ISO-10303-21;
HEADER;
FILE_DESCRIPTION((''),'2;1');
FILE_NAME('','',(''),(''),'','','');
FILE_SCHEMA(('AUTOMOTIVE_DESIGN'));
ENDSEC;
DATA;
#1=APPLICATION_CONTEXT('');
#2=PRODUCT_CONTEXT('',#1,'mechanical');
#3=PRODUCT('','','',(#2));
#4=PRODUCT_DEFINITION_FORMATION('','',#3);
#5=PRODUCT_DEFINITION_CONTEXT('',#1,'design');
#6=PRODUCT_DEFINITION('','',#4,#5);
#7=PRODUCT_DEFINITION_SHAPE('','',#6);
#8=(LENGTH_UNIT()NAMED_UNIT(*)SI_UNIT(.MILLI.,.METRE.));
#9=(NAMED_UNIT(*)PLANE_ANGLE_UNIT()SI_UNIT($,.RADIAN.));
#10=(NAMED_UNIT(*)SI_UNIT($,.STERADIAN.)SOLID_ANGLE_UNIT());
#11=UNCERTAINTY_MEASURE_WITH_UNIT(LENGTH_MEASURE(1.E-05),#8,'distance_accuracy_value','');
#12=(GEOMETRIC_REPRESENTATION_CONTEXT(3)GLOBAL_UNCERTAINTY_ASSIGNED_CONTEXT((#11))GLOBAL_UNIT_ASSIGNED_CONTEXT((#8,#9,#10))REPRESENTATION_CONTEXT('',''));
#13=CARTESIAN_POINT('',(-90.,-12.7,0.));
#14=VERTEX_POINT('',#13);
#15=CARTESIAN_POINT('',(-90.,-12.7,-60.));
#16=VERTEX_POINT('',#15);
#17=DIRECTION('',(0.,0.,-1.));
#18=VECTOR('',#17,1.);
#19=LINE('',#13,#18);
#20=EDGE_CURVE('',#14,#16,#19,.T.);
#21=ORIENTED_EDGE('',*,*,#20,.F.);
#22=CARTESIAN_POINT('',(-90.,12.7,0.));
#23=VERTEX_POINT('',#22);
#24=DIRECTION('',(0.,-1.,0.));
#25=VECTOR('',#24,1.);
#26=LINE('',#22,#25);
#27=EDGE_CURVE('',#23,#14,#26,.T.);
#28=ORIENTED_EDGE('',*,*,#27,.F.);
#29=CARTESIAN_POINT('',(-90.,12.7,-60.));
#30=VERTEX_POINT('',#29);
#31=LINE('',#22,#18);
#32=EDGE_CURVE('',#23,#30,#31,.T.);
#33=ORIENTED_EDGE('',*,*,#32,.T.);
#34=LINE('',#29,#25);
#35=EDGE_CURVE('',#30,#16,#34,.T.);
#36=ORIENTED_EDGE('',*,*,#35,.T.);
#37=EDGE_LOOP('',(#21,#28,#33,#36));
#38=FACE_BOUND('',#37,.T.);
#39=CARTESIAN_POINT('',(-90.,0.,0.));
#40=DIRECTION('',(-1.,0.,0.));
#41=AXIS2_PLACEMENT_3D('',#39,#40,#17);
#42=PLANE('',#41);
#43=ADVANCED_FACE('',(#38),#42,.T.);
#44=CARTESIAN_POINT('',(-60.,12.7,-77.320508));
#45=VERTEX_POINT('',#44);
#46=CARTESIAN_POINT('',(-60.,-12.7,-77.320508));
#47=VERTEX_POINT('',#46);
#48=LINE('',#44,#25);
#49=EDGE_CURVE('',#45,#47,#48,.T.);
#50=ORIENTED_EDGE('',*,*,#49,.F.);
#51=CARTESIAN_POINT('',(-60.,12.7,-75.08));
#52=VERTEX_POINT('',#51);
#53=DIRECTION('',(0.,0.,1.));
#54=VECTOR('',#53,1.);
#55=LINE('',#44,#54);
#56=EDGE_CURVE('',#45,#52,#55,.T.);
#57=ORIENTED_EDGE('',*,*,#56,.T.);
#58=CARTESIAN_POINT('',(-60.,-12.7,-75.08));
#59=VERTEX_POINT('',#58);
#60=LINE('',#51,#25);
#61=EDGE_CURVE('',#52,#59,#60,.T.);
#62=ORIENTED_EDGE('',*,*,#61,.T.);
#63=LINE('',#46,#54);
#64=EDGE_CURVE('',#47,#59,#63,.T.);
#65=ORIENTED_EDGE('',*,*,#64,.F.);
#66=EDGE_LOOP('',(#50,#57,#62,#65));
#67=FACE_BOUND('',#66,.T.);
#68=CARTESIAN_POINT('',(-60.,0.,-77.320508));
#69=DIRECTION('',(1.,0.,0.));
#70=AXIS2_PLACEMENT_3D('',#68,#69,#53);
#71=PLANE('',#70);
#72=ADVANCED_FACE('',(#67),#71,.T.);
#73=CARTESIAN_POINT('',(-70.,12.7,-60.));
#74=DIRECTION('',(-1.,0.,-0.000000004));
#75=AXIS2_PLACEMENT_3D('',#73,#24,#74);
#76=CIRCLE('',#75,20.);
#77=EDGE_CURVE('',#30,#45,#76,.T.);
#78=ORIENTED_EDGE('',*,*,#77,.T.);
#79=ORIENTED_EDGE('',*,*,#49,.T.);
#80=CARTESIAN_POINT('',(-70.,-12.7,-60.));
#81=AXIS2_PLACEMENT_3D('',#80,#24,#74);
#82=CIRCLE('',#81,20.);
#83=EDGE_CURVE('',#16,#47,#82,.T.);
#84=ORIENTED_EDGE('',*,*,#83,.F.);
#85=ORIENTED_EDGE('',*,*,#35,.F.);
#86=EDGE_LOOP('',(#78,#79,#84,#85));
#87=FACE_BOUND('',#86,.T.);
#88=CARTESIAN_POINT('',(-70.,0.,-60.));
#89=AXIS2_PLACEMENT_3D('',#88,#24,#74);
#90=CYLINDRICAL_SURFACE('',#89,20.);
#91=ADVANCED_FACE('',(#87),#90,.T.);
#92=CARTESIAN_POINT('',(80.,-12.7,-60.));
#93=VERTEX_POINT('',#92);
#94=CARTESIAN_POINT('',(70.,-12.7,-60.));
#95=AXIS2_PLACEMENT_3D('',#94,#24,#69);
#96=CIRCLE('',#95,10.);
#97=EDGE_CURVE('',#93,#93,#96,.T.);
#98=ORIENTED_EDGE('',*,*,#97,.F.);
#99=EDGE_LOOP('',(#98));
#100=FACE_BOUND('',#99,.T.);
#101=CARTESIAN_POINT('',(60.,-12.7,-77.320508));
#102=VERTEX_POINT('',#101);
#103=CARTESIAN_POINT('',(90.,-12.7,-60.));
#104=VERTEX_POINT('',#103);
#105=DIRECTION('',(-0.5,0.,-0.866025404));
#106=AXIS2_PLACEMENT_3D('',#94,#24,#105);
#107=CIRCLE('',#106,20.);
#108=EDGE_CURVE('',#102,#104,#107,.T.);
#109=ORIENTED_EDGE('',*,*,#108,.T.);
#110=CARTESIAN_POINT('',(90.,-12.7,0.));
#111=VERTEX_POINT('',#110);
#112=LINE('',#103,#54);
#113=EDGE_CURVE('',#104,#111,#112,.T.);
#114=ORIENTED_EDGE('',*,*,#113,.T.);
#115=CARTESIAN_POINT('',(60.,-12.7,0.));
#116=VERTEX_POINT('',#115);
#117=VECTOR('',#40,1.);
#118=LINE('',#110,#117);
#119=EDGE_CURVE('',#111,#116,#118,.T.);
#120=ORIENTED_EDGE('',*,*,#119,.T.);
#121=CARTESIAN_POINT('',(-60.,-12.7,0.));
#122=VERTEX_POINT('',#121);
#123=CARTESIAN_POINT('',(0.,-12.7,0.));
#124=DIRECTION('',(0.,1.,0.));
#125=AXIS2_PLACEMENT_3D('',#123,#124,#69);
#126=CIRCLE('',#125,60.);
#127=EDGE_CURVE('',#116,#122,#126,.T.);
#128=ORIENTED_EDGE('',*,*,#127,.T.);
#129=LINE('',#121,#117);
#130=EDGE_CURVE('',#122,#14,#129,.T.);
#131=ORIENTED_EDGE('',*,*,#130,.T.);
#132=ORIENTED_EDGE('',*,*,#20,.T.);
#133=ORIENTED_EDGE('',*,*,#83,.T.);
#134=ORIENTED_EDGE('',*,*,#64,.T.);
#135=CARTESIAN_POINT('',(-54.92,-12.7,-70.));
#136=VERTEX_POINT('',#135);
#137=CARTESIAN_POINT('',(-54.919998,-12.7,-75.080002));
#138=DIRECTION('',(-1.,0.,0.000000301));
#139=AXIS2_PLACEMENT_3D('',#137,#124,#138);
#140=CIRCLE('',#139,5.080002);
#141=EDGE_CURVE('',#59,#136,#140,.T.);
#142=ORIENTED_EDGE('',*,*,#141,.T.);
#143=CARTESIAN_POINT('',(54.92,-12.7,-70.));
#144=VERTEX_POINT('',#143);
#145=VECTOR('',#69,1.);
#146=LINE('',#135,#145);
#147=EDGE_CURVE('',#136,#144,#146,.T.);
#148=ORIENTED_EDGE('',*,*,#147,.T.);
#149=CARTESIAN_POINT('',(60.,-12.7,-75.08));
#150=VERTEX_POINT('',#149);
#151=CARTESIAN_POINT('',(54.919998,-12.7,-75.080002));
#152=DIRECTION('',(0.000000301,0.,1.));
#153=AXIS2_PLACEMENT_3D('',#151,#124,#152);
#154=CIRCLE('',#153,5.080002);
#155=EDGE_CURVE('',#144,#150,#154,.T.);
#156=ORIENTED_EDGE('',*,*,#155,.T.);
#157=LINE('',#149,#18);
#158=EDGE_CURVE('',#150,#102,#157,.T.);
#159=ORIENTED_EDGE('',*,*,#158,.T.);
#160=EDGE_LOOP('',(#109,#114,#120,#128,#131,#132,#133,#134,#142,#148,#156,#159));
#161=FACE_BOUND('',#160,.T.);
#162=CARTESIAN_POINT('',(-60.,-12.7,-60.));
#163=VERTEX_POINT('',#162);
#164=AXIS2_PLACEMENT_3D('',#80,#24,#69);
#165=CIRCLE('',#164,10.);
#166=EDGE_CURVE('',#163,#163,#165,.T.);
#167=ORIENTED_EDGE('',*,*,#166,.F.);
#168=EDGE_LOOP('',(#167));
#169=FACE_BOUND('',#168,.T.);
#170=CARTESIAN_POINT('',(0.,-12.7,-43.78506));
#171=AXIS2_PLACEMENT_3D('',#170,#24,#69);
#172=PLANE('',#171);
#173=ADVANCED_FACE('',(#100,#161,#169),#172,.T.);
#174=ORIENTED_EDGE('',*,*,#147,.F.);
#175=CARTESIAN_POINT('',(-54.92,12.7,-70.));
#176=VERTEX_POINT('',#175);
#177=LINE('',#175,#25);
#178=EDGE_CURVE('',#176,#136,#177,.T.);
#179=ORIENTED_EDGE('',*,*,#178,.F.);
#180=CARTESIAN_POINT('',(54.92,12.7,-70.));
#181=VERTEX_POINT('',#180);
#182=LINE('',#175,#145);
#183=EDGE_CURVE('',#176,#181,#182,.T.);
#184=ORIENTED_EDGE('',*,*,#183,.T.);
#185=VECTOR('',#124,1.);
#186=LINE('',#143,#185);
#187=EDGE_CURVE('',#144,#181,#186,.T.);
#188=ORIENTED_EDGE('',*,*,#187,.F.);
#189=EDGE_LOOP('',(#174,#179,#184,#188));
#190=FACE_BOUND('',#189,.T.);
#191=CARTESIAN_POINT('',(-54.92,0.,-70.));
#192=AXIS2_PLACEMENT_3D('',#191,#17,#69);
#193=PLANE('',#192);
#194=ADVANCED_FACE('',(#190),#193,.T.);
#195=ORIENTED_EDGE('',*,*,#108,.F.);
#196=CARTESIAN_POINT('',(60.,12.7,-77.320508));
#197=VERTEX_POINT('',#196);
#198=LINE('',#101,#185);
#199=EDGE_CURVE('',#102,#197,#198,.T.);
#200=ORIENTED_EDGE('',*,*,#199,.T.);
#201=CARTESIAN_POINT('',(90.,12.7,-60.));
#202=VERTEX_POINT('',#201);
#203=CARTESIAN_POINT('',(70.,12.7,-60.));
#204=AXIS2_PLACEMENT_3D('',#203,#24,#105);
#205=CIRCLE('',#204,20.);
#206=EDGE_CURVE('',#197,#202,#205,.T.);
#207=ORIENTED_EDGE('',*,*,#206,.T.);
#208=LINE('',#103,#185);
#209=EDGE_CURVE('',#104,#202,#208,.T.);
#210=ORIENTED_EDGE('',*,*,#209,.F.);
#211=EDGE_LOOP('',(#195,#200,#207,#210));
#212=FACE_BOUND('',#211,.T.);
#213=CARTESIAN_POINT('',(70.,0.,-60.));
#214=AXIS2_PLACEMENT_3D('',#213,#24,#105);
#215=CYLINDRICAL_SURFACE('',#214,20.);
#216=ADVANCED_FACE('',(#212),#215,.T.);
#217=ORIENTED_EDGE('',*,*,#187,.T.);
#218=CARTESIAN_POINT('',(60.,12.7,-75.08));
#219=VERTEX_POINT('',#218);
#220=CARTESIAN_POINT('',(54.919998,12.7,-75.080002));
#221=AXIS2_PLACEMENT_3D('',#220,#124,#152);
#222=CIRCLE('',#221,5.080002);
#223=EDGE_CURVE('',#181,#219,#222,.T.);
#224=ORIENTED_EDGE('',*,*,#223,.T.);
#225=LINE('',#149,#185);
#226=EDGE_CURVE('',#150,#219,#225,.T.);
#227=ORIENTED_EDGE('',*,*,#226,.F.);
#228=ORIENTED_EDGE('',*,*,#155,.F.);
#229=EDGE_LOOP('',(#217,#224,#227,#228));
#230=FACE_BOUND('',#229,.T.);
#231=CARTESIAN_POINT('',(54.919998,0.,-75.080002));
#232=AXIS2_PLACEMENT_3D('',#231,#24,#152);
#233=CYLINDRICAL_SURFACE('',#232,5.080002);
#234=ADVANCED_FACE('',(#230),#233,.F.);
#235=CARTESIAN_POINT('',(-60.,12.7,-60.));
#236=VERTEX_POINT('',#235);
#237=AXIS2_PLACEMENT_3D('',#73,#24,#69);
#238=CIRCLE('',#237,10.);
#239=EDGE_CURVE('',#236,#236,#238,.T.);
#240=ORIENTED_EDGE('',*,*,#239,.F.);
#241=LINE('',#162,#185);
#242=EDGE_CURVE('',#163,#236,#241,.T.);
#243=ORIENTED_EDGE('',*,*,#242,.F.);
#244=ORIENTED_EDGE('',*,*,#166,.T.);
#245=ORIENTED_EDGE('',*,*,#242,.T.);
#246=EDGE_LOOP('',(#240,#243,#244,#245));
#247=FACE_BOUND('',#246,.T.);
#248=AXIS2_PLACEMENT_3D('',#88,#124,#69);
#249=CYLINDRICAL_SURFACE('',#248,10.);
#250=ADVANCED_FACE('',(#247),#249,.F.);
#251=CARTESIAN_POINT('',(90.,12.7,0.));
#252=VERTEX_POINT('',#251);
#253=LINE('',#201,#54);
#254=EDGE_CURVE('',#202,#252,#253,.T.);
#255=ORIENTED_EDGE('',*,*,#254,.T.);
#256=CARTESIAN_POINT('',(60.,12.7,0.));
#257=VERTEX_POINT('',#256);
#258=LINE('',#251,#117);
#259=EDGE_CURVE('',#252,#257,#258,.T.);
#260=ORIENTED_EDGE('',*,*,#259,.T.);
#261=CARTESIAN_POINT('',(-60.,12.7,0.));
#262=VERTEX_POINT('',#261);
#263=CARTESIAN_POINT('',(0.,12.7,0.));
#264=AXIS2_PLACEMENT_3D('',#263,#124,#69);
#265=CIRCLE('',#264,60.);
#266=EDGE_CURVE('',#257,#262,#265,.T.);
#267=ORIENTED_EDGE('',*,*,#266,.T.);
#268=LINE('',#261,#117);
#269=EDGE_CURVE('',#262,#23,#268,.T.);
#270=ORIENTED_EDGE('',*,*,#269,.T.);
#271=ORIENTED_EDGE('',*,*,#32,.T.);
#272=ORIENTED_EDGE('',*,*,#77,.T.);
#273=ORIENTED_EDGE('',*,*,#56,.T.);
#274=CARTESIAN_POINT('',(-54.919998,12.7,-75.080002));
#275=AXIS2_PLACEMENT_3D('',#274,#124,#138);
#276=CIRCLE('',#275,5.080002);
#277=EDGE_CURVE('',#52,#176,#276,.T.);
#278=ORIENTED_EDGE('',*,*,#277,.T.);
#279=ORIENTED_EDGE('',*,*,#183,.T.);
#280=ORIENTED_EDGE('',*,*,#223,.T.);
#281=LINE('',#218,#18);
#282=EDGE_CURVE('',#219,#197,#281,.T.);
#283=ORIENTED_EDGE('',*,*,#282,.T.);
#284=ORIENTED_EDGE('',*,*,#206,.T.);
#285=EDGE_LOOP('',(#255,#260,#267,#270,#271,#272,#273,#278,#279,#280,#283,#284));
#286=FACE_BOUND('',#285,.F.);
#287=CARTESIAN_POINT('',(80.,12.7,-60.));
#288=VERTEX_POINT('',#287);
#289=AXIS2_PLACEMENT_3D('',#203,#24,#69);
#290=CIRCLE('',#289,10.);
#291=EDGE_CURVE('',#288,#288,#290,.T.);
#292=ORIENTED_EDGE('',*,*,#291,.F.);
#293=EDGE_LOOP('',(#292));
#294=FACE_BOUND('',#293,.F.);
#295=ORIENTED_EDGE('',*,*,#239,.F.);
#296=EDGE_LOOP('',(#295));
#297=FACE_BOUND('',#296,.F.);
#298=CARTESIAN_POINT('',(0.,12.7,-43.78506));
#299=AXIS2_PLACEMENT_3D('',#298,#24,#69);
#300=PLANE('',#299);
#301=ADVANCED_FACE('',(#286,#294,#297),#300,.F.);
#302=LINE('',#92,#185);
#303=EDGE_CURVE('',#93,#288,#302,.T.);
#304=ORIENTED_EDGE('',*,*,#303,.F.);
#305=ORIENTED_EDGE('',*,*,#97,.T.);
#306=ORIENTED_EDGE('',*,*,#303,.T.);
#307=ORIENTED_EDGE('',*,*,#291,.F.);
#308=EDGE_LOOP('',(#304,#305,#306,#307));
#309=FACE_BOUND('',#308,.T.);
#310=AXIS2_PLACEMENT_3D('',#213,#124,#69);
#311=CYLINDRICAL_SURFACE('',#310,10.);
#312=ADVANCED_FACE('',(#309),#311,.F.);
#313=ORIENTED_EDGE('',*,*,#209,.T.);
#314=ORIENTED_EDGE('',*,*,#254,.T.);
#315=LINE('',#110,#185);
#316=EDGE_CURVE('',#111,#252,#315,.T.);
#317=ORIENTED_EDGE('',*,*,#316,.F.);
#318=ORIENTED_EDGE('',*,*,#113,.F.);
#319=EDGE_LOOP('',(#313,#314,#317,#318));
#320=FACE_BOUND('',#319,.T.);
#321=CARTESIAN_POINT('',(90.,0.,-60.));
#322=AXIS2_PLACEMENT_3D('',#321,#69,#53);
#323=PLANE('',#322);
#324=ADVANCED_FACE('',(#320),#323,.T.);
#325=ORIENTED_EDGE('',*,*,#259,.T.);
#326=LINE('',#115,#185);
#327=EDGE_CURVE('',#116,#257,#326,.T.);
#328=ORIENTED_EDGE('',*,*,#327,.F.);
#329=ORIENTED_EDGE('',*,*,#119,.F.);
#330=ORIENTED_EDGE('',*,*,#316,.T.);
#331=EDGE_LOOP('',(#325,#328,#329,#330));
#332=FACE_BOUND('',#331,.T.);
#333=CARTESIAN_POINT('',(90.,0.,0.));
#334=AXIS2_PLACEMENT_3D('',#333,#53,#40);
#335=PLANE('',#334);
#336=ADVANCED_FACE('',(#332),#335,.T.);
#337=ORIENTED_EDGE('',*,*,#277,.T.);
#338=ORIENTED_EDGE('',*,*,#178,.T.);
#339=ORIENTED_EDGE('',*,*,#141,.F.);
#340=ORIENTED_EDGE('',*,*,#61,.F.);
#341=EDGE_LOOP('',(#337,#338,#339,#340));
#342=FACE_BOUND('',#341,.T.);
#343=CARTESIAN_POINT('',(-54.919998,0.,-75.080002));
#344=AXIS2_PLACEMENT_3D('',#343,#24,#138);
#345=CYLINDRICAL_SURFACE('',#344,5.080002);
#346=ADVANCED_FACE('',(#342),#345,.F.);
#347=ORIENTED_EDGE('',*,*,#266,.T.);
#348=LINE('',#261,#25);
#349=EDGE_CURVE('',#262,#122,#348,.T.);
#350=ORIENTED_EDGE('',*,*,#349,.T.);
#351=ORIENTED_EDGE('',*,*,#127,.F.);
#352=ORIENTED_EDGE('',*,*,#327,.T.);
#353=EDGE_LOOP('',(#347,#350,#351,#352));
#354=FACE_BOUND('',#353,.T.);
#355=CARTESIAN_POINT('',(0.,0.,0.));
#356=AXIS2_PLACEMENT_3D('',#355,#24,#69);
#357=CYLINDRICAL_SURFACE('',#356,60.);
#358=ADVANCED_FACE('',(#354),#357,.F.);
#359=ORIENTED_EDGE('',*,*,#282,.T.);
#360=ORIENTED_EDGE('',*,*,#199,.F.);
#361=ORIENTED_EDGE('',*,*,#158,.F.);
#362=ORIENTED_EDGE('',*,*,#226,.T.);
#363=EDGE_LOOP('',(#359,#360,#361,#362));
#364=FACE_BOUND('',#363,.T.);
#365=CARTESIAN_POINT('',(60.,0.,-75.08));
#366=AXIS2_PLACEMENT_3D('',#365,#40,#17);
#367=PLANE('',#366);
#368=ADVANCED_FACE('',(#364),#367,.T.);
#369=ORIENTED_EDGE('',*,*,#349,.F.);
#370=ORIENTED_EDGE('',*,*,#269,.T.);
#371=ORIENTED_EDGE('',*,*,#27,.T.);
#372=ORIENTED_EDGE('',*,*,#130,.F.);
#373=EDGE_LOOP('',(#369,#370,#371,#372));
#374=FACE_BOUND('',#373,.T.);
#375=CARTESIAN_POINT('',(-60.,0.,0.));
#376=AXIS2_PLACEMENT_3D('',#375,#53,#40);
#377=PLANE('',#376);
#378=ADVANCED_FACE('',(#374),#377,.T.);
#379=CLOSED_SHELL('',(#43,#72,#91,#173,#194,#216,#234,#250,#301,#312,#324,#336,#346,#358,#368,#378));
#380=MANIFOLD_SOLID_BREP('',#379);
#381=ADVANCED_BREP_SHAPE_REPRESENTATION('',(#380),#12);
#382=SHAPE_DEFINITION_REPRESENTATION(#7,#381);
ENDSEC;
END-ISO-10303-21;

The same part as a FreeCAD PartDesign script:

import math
import FreeCAD as App
import Part
import Sketcher
Q = App.Units.Quantity

doc = App.newDocument("Part")
body = doc.addObject("PartDesign::Body", "Body")

# Sketch on XZ plane
sketch1 = body.newObject("Sketcher::SketchObject", "Sketch")
sketch1.AttachmentSupport = (doc.getObject("XZ_Plane"), [""])
sketch1.MapMode = "FlatFace"
sketch1.addGeometry([
    Part.ArcOfCircle(Part.Circle(App.Vector(0, 0, 0), App.Vector(0, 0, 1), 60), math.radians(180), math.radians(360)),  # 0
    Part.LineSegment(App.Vector(-60, 0, 0), App.Vector(-90, 0, 0)),  # 1
    Part.LineSegment(App.Vector(-90, 0, 0), App.Vector(-90, -60, 0)),  # 2
    Part.ArcOfCircle(Part.Circle(App.Vector(-70, -60, 0), App.Vector(0, 0, 1), 20), math.radians(-180), math.radians(-60)),  # 3
    Part.LineSegment(App.Vector(-60, -77.3, 0), App.Vector(-60, -75.1, 0)),  # 4
    Part.ArcOfCircle(Part.Circle(App.Vector(-54.9, -75.1, 0), App.Vector(0, 0, 1), 5.1), math.radians(90), math.radians(180)),  # 5
    Part.LineSegment(App.Vector(-54.9, -70, 0), App.Vector(54.9, -70, 0)),  # 6
    Part.ArcOfCircle(Part.Circle(App.Vector(54.9, -75.1, 0), App.Vector(0, 0, 1), 5.1), math.radians(0), math.radians(90)),  # 7
    Part.LineSegment(App.Vector(60, -75.1, 0), App.Vector(60, -77.3, 0)),  # 8
    Part.ArcOfCircle(Part.Circle(App.Vector(70, -60, 0), App.Vector(0, 0, 1), 20), math.radians(-120), math.radians(0)),  # 9
    Part.LineSegment(App.Vector(90, -60, 0), App.Vector(90, 0, 0)),  # 10
    Part.LineSegment(App.Vector(90, 0, 0), App.Vector(60, 0, 0)),  # 11
    Part.Circle(App.Vector(-70, -60, 0), App.Vector(0, 0, 1), 10),  # 12
    Part.Circle(App.Vector(70, -60, 0), App.Vector(0, 0, 1), 10),  # 13
], False)
sketch1.addConstraint([
    Sketcher.Constraint("Coincident", 0, 1, 1, 1),
    Sketcher.Constraint("Coincident", 1, 2, 2, 1),
    Sketcher.Constraint("Tangent", 2, 2, 3, 1),
    Sketcher.Constraint("Coincident", 3, 2, 4, 1),
    Sketcher.Constraint("Tangent", 4, 2, 5, 2),
    Sketcher.Constraint("Tangent", 5, 1, 6, 1),
    Sketcher.Constraint("Tangent", 6, 2, 7, 2),
    Sketcher.Constraint("Tangent", 7, 1, 8, 1),
    Sketcher.Constraint("Coincident", 8, 2, 9, 1),
    Sketcher.Constraint("Tangent", 9, 2, 10, 1),
    Sketcher.Constraint("Coincident", 10, 2, 11, 1),
    Sketcher.Constraint("Coincident", 11, 2, 0, 2),
    Sketcher.Constraint("Horizontal", 1),
    Sketcher.Constraint("Vertical", 2),
    Sketcher.Constraint("Vertical", 4),
    Sketcher.Constraint("Horizontal", 6),
    Sketcher.Constraint("Vertical", 8),
    Sketcher.Constraint("Vertical", 10),
    Sketcher.Constraint("Horizontal", 11),
    Sketcher.Constraint("Coincident", 0, 3, -1, 1),
    Sketcher.Constraint("Coincident", 12, 3, 3, 3),
    Sketcher.Constraint("Coincident", 13, 3, 9, 3),
    Sketcher.Constraint("Equal", 5, 7),
    Sketcher.Constraint("Equal", 3, 9),
    Sketcher.Constraint("Equal", 12, 13),
    Sketcher.Constraint("Symmetric", 1, 2, 10, 2, -1, 1),
    Sketcher.Constraint("Symmetric", 3, 2, 8, 2, -2),
    Sketcher.Constraint("PointOnObject", 0, 1, -1),
    Sketcher.Constraint("Vertical", 0, 1, 3, 2),
    Sketcher.Constraint("Diameter", 12, Q("20 mm")),
    Sketcher.Constraint("Radius", 0, Q("60 mm")),
    Sketcher.Constraint("Radius", 3, Q("20 mm")),
    Sketcher.Constraint("DistanceX", 1, 2, 1, 1, Q("30 mm")),
    Sketcher.Constraint("DistanceY", 2, 2, 2, 1, Q("60 mm")),
    Sketcher.Constraint("Radius", 5, Q("5.080002 mm")),
    Sketcher.Constraint("DistanceY", 5, 1, -1, 1, Q("70 mm")),
])
pad1 = body.newObject("PartDesign::Pad", "Pad")
pad1.Profile = sketch1
pad1.Length = 25.4
pad1.Midplane = True

doc.recompute()
